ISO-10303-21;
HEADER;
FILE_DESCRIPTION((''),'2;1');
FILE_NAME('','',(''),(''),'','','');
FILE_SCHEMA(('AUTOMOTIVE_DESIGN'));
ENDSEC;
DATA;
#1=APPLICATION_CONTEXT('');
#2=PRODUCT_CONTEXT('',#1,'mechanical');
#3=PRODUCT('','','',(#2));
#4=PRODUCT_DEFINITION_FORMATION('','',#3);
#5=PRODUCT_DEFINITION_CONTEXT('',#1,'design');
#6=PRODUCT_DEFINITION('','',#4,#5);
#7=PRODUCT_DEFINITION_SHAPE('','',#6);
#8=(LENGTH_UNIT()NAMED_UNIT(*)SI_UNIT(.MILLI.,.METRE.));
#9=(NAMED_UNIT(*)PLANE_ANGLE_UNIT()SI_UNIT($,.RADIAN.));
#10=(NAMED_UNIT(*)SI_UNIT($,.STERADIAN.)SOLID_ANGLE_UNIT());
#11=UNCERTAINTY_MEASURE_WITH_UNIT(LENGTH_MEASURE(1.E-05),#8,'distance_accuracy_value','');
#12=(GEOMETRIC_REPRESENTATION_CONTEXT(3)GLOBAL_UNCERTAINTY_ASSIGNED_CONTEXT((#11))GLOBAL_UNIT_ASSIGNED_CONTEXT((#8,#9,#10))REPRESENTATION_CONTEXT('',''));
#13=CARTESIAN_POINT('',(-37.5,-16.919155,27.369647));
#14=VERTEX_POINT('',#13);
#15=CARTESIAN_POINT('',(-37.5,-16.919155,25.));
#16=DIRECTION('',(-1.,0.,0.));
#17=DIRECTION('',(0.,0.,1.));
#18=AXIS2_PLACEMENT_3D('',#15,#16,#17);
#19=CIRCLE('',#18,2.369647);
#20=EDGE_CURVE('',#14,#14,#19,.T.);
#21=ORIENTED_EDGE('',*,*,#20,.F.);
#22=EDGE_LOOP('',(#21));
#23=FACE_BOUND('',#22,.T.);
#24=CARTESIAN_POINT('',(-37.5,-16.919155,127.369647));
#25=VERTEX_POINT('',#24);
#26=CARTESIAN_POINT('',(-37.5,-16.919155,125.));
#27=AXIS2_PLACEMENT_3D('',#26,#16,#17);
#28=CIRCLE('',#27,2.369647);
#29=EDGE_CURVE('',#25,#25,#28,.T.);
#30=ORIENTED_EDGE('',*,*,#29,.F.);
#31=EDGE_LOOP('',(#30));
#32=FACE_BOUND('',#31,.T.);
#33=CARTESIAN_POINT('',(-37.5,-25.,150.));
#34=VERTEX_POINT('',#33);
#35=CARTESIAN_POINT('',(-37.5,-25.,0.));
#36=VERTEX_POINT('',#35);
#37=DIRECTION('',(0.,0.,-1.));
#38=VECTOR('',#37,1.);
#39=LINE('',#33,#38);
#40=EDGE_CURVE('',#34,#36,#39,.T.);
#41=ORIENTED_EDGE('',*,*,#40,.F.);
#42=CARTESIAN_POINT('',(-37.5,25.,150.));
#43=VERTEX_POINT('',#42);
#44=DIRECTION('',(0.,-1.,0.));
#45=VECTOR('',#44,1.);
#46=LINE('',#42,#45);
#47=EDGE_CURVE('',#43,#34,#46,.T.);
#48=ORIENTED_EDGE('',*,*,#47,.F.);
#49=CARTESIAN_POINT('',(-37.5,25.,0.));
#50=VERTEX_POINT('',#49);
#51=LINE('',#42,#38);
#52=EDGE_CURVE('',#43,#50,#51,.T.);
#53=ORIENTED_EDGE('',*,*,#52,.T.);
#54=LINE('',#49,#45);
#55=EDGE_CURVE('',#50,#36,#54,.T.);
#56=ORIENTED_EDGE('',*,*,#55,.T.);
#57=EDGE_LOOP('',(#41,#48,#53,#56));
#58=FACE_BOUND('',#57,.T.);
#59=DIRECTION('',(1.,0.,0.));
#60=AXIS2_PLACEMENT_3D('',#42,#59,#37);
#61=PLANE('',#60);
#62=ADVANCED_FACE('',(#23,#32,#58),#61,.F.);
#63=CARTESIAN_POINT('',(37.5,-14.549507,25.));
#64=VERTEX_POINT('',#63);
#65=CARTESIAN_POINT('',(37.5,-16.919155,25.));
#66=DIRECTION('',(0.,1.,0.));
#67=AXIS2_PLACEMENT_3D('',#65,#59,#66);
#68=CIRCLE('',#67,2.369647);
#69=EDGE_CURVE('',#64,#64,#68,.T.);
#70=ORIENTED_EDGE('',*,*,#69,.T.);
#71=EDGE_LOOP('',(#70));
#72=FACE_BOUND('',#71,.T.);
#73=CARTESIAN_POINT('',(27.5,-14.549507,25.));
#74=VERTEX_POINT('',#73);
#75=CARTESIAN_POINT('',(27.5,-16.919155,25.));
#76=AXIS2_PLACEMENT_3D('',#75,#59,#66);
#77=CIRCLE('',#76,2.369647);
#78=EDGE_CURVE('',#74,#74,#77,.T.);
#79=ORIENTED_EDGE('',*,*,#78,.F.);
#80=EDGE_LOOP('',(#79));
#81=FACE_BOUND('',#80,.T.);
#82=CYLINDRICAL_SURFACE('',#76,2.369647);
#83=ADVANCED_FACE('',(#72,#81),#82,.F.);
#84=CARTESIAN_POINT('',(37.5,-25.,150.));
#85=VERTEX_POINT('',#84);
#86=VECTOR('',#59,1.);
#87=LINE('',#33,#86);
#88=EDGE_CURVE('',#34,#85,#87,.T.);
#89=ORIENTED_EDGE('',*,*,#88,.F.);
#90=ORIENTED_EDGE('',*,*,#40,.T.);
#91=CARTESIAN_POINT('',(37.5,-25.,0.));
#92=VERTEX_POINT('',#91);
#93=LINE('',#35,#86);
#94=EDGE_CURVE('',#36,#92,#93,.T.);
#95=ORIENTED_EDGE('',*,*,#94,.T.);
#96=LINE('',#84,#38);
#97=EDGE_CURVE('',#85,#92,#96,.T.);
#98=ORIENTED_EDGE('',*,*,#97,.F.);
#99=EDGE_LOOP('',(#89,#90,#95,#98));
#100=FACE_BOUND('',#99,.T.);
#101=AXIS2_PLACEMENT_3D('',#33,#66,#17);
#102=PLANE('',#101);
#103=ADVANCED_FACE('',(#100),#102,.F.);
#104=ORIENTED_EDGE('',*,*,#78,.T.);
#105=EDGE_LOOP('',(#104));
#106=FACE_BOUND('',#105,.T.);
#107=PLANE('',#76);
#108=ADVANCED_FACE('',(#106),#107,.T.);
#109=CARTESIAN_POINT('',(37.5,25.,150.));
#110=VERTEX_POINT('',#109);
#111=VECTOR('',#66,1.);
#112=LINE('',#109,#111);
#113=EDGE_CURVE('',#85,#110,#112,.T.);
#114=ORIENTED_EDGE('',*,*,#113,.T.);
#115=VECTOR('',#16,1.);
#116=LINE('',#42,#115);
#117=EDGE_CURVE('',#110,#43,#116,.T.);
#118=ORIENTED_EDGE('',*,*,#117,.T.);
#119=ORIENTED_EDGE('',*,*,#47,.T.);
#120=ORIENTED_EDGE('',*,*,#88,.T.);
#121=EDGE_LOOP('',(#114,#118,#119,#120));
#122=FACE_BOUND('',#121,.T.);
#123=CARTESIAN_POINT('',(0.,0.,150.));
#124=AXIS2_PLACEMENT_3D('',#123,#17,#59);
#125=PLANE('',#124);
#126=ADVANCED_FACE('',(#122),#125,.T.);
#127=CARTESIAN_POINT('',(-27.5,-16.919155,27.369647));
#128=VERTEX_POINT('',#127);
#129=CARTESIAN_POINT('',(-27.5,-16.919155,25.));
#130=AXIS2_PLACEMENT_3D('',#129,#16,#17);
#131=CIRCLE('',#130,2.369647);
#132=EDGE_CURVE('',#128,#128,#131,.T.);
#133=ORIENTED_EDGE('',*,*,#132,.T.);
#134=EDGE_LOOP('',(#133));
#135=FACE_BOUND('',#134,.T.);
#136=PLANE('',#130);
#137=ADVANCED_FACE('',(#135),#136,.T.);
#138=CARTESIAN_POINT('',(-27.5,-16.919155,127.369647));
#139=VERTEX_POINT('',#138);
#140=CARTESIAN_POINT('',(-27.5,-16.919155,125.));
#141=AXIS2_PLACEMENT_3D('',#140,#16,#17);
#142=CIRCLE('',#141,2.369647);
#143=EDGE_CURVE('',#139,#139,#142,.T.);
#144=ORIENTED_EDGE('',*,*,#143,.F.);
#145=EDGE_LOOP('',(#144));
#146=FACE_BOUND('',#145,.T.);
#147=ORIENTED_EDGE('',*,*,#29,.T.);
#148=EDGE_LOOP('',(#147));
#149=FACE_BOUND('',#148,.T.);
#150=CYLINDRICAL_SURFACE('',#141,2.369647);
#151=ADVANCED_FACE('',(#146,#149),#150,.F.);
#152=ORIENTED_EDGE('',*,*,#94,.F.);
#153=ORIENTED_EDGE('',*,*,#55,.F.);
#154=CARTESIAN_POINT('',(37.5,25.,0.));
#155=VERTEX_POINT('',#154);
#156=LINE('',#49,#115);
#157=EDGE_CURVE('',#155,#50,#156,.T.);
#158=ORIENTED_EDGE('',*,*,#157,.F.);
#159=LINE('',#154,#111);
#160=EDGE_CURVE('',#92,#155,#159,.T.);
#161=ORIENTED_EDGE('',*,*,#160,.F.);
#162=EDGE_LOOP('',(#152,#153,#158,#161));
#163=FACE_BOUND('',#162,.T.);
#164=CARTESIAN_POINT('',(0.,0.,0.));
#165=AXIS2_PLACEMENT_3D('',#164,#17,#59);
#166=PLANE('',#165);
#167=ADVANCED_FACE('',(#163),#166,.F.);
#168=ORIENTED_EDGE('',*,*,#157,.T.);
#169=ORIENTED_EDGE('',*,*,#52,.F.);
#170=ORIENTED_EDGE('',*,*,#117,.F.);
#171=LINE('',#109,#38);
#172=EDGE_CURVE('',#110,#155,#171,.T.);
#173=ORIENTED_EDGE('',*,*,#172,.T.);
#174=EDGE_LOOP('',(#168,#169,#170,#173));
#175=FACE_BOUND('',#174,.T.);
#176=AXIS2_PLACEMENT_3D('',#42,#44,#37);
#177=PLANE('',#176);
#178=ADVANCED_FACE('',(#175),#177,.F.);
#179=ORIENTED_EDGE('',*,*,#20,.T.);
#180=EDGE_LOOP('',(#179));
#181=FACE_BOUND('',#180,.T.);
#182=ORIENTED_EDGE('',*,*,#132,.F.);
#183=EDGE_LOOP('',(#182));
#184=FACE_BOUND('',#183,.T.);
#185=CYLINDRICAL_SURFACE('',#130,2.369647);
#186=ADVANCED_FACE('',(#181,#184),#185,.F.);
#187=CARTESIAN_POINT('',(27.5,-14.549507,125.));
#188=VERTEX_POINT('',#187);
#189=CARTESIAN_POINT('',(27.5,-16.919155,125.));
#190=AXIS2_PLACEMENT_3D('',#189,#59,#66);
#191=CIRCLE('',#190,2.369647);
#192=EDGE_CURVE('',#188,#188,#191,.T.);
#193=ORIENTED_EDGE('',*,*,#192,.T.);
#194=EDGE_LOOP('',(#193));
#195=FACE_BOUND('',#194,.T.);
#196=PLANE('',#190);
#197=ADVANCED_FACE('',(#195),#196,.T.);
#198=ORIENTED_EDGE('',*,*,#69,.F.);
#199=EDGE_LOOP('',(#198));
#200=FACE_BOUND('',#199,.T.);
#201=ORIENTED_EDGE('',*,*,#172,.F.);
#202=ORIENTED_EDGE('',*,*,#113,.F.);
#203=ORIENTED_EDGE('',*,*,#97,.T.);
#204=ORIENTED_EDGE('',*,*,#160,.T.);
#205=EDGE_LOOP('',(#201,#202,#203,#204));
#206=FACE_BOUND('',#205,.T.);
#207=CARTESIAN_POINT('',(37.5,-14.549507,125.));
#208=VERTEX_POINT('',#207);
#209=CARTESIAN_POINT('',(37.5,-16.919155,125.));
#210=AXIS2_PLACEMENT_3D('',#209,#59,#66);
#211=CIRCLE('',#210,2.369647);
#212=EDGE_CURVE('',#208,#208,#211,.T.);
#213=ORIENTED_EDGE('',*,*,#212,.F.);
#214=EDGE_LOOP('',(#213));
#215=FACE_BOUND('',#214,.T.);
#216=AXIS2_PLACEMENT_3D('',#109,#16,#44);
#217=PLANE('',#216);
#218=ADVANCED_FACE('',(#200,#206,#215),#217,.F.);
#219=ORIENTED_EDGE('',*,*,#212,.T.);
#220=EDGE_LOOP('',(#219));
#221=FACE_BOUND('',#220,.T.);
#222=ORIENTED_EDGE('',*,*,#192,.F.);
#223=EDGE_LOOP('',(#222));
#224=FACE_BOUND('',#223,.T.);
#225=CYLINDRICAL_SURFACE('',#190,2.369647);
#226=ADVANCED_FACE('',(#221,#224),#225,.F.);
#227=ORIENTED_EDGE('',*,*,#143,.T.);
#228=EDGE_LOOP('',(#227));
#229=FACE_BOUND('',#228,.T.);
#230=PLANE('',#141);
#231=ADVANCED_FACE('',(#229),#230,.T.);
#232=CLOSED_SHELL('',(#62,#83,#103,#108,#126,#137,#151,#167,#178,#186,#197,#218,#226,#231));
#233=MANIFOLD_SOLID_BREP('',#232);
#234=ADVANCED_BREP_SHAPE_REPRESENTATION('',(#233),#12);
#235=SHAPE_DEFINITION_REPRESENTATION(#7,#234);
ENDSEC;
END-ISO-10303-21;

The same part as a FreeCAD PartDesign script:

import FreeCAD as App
import Part
import Sketcher


def add_polygon(sketch, points):
    """Adds a closed chain of lines whose ends are joined by coincident constraints."""
    first, n = sketch.GeometryCount, len(points)
    for a, b in zip(points, points[1:] + points[:1]):
        sketch.addGeometry(Part.LineSegment(App.Vector(*a, 0), App.Vector(*b, 0)), False)
    for i in range(n):
        sketch.addConstraint(Sketcher.Constraint("Coincident", first + i, 2, first + (i + 1) % n, 1))

doc = App.newDocument("Part")
body = doc.addObject("PartDesign::Body", "Body")

# Sketch on XY plane
sketch1 = body.newObject("Sketcher::SketchObject", "Sketch")
sketch1.AttachmentSupport = (doc.getObject("XY_Plane"), [""])
sketch1.MapMode = "FlatFace"
add_polygon(sketch1, [(-37.5, 25), (-37.5, -25), (37.5, -25), (37.5, 25)])  # lines 0-3
sketch1.addConstraint(Sketcher.Constraint("Vertical", 0))
sketch1.addConstraint(Sketcher.Constraint("Horizontal", 1))
sketch1.addConstraint(Sketcher.Constraint("Vertical", 2))
sketch1.addConstraint(Sketcher.Constraint("Horizontal", 3))
sketch1.addConstraint(Sketcher.Constraint("Symmetric", 0, 2, 2, 2, -1, 1))
sketch1.addConstraint(Sketcher.Constraint("DistanceX", 1, 1, 1, 2, 75.0))
sketch1.addConstraint(Sketcher.Constraint("DistanceY", 0, 2, 0, 1, 50.0))
pad1 = body.newObject("PartDesign::Pad", "Pad")
pad1.Profile = sketch1
pad1.Length = 150

# Sketch on YZ plane
sketch2 = body.newObject("Sketcher::SketchObject", "Sketch001")
sketch2.AttachmentSupport = (doc.getObject("YZ_Plane"), [""])
sketch2.MapMode = "FlatFace"
sketch2.AttachmentOffset = App.Placement(App.Vector(0, 0, 37.5), App.Rotation())
sketch2.addGeometry(Part.Circle(App.Vector(-16.919155, 125, 0), App.Vector(0, 0, 1), 2.369647), False)
sketch2.addGeometry(Part.Circle(App.Vector(-16.919155, 25, 0), App.Vector(0, 0, 1), 2.369647), False)
sketch2.addConstraint(Sketcher.Constraint("Equal", 0, 1))
sketch2.addConstraint(Sketcher.Constraint("Vertical", 0, 3, 1, 3))
sketch2.addConstraint(Sketcher.Constraint("DistanceY", -1, 1, 0, 3, 125.0))
sketch2.addConstraint(Sketcher.Constraint("DistanceY", -1, 1, 1, 3, 25.0))
sketch2.addConstraint(Sketcher.Constraint("Diameter", 0, 4.739294))
sketch2.addConstraint(Sketcher.Constraint("DistanceX", 0, 3, -1, 1, 16.919155))
pocket1 = body.newObject("PartDesign::Pocket", "Pocket")
pocket1.Profile = sketch2
pocket1.Length = 10

# Sketch on YZ plane
sketch3 = body.newObject("Sketcher::SketchObject", "Sketch002")
sketch3.AttachmentSupport = (doc.getObject("YZ_Plane"), [""])
sketch3.MapMode = "FlatFace"
sketch3.AttachmentOffset = App.Placement(App.Vector(0, 0, -27.5), App.Rotation())
sketch3.addGeometry(Part.Circle(App.Vector(-16.919155, 25, 0), App.Vector(0, 0, 1), 2.369647), False)
sketch3.addGeometry(Part.Circle(App.Vector(-16.919155, 125, 0), App.Vector(0, 0, 1), 2.369647), False)
sketch3.addConstraint(Sketcher.Constraint("Equal", 0, 1))
sketch3.addConstraint(Sketcher.Constraint("Vertical", 0, 3, 1, 3))
sketch3.addConstraint(Sketcher.Constraint("DistanceY", -1, 1, 0, 3, 25.0))
sketch3.addConstraint(Sketcher.Constraint("DistanceY", -1, 1, 1, 3, 125.0))
sketch3.addConstraint(Sketcher.Constraint("Diameter", 0, 4.739294))
sketch3.addConstraint(Sketcher.Constraint("DistanceX", 0, 3, -1, 1, 16.919155))
pocket2 = body.newObject("PartDesign::Pocket", "Pocket001")
pocket2.Profile = sketch3
pocket2.Length = 10

doc.recompute()
